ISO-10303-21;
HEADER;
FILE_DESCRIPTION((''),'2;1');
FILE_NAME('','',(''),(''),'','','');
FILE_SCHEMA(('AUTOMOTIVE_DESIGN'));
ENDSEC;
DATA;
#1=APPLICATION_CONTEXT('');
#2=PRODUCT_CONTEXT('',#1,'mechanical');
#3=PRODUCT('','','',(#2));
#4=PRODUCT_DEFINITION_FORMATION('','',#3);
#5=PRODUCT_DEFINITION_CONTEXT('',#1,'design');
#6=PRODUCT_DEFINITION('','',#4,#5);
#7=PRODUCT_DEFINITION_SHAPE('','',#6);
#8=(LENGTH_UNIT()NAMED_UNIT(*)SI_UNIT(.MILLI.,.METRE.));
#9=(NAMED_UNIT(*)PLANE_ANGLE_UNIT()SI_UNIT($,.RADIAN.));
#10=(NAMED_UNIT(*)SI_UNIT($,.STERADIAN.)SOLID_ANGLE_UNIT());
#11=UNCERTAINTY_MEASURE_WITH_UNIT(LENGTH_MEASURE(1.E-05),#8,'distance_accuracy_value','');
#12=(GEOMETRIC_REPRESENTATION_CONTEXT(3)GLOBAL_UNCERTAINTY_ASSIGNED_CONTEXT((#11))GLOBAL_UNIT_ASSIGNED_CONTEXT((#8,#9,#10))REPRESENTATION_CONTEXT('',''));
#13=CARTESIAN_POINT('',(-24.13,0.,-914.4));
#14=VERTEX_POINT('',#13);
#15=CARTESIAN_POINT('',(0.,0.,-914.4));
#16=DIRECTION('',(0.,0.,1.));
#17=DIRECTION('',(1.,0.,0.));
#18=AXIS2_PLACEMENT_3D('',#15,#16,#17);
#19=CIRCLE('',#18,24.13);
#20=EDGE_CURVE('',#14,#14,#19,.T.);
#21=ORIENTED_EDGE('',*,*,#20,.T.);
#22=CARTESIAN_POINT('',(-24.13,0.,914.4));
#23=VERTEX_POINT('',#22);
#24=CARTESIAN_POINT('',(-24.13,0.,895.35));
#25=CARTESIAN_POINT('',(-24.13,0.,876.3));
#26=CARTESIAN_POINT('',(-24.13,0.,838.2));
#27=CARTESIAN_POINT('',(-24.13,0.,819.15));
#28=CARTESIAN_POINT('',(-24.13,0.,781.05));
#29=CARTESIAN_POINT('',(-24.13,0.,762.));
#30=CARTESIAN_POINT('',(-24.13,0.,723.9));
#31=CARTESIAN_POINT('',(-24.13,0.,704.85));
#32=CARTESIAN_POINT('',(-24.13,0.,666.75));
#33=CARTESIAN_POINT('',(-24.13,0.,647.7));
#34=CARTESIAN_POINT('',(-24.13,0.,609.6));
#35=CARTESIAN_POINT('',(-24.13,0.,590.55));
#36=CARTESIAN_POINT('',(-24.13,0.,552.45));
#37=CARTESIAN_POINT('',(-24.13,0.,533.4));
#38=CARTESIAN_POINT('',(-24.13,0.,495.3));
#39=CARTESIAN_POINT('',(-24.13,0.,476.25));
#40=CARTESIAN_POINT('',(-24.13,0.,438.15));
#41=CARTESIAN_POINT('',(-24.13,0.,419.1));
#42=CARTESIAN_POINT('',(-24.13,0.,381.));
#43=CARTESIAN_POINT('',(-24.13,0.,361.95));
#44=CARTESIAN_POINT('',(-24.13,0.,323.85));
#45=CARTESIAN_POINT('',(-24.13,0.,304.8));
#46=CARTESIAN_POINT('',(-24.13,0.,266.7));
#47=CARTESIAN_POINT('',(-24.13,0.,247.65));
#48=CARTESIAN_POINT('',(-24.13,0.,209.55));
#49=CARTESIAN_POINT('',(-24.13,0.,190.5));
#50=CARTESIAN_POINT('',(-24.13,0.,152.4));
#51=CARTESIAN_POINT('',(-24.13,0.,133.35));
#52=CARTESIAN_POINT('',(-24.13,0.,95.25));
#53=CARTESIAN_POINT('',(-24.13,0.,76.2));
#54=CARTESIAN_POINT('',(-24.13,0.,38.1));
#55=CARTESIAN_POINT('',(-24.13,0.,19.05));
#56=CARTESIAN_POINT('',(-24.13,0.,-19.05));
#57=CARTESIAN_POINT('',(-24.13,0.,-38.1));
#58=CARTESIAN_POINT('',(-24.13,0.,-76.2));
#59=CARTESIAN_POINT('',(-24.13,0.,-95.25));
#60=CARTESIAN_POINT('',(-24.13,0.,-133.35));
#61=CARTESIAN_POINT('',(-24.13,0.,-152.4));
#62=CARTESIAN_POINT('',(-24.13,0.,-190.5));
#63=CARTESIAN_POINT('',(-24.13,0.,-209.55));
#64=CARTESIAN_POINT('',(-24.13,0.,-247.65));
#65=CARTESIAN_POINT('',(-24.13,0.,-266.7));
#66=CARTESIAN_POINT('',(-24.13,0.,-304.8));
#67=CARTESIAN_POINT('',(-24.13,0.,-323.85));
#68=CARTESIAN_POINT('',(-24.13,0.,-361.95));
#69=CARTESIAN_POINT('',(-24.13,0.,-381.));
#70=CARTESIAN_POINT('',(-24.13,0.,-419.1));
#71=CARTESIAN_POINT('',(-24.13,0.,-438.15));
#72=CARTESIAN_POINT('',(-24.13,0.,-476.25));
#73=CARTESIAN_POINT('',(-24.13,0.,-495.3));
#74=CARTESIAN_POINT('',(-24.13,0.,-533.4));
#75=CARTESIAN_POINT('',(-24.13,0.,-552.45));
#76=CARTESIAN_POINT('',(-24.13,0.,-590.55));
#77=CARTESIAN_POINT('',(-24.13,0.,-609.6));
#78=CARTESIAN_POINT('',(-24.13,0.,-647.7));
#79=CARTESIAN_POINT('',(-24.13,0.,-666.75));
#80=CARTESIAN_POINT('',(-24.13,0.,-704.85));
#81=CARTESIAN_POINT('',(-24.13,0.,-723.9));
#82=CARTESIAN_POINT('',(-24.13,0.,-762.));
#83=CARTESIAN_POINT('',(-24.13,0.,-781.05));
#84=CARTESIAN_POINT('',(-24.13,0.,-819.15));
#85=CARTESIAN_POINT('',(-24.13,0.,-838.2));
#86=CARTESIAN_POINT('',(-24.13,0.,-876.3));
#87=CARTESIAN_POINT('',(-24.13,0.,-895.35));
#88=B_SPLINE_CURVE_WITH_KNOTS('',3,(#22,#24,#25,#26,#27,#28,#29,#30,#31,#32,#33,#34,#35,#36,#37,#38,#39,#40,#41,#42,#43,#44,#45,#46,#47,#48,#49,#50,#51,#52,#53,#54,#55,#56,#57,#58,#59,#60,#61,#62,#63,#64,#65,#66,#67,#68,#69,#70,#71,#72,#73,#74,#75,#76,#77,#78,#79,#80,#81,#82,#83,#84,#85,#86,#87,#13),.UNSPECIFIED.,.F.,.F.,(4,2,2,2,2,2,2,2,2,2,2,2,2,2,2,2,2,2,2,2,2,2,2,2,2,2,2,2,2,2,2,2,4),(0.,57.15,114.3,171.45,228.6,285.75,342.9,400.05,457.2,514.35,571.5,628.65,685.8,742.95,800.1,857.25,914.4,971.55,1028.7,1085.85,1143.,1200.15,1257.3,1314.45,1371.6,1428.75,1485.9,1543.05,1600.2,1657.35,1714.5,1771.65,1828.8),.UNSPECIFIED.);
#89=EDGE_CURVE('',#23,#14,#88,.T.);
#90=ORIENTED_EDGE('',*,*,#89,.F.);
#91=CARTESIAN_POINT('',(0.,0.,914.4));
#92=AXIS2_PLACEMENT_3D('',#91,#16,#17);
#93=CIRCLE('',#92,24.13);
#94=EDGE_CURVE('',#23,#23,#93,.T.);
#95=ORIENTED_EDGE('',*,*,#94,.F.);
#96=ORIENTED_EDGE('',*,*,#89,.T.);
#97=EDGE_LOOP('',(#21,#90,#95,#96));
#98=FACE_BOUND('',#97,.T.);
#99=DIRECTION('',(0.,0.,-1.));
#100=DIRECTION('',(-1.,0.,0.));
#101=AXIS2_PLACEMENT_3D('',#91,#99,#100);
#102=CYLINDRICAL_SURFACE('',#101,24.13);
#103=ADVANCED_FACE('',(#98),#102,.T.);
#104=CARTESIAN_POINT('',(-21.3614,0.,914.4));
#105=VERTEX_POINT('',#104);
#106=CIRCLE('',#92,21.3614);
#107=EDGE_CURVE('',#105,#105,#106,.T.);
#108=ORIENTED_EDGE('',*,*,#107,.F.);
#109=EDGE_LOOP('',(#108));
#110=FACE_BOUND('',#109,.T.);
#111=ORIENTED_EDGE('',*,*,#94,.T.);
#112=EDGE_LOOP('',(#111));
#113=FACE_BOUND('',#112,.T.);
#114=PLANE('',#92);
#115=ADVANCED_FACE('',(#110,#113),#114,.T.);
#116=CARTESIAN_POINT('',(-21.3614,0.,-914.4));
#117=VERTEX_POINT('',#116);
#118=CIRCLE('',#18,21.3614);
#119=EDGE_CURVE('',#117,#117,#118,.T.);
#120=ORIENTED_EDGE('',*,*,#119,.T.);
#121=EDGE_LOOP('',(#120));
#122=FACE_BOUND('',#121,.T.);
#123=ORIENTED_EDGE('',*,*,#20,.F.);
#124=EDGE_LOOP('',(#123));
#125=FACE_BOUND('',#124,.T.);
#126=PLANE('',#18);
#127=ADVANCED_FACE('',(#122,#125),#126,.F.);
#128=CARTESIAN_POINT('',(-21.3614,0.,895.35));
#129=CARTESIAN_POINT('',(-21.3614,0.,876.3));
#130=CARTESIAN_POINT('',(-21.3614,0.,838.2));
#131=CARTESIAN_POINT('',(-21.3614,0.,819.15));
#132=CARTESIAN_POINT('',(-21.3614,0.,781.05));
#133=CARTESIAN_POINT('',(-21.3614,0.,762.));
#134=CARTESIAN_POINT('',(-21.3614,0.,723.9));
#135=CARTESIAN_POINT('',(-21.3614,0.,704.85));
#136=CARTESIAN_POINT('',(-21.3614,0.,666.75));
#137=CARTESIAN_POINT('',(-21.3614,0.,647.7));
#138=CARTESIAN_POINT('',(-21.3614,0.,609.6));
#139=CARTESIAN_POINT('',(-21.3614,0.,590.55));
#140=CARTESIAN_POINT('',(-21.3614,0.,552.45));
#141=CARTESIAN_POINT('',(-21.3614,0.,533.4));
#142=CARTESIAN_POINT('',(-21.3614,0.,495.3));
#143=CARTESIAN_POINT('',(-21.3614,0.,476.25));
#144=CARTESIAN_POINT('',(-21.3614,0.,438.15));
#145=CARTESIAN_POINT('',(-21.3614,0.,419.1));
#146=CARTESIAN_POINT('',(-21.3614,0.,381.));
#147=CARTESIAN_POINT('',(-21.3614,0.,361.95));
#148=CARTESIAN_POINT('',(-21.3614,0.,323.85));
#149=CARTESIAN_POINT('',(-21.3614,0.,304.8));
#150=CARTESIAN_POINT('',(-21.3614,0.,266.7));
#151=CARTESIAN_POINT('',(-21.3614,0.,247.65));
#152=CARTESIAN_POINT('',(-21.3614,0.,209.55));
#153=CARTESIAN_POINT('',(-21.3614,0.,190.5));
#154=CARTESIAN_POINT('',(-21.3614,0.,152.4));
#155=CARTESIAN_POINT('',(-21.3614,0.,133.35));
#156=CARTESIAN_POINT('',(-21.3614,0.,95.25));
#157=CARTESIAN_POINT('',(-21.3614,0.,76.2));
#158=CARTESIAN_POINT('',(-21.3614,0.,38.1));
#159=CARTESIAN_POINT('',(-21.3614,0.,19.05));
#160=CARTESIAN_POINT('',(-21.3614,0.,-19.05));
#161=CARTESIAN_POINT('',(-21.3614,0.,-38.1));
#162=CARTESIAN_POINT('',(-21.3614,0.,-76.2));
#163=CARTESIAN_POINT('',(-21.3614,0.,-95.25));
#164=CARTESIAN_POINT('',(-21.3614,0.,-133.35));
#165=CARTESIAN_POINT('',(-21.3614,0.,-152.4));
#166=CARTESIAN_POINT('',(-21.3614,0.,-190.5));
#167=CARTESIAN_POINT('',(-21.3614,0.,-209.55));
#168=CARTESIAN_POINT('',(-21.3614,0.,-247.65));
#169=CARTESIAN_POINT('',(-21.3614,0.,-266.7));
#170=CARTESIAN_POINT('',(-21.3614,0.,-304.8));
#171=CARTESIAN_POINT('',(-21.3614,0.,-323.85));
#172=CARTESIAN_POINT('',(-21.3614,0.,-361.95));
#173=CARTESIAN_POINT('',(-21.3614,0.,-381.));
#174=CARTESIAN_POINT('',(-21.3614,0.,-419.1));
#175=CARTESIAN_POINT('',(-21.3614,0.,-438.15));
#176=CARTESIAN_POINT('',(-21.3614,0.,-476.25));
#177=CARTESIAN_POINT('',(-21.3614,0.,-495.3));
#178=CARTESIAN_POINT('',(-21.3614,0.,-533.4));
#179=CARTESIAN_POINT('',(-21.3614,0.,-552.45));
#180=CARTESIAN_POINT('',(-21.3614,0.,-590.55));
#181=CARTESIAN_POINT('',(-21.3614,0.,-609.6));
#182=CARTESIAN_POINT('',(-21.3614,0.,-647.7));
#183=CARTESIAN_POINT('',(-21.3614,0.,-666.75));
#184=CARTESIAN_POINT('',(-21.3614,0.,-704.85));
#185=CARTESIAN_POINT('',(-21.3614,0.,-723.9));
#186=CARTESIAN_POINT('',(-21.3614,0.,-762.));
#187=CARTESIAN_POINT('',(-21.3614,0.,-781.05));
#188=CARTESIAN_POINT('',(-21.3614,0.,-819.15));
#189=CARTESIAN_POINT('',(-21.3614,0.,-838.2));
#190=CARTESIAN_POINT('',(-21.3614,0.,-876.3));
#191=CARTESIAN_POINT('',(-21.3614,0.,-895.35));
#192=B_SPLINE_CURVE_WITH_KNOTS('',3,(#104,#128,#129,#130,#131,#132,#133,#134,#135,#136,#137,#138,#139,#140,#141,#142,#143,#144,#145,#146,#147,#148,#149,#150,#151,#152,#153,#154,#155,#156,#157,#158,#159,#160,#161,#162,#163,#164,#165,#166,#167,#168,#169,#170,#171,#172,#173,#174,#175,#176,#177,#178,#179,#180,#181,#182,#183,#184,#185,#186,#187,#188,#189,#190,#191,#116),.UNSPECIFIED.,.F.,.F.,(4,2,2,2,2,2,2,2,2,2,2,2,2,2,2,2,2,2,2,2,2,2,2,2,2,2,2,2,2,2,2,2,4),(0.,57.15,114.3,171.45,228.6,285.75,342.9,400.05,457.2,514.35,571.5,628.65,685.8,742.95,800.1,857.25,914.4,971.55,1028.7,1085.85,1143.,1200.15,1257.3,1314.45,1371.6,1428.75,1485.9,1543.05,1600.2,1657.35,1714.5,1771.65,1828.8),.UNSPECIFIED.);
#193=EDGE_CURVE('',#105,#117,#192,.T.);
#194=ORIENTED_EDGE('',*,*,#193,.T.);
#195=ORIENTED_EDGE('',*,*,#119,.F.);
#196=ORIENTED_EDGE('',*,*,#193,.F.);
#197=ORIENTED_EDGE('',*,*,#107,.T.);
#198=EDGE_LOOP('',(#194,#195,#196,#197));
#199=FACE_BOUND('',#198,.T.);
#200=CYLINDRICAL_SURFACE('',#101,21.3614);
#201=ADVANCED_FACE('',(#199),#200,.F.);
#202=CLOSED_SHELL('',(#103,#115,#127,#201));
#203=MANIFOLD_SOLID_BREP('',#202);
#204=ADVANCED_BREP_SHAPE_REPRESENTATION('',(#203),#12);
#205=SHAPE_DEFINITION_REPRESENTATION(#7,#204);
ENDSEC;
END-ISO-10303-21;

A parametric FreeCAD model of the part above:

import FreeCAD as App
import Part
import Sketcher
Q = App.Units.Quantity

doc = App.newDocument("Part")
body = doc.addObject("PartDesign::Body", "Body")

sketch1 = body.newObject("Sketcher::SketchObject", "Sketch")
sketch1.AttachmentSupport = (doc.getObject("XY_Plane"), [""])
sketch1.MapMode = "FlatFace"
sketch1.addGeometry([
    Part.Circle(App.Vector(0, 0, 0), App.Vector(0, 0, 1), 24.13),
    Part.Circle(App.Vector(0, 0, 0), App.Vector(0, 0, 1), 21.3614),
], False)
sketch1.addConstraint([
    Sketcher.Constraint("Coincident", 0, 3, -1, 1),
    Sketcher.Constraint("Coincident", 1, 3, -1, 1),
    Sketcher.Constraint("Diameter", 0, Q("1.9 in")),
    Sketcher.Constraint("Diameter", 1, Q("1.682 in")),
])
pad1 = body.newObject("PartDesign::Pad", "Pad")
pad1.Profile = sketch1
pad1.Type = "TwoLengths"
pad1.Length = Q("36 in")
pad1.Length2 = Q("36 in")

doc.recompute()
